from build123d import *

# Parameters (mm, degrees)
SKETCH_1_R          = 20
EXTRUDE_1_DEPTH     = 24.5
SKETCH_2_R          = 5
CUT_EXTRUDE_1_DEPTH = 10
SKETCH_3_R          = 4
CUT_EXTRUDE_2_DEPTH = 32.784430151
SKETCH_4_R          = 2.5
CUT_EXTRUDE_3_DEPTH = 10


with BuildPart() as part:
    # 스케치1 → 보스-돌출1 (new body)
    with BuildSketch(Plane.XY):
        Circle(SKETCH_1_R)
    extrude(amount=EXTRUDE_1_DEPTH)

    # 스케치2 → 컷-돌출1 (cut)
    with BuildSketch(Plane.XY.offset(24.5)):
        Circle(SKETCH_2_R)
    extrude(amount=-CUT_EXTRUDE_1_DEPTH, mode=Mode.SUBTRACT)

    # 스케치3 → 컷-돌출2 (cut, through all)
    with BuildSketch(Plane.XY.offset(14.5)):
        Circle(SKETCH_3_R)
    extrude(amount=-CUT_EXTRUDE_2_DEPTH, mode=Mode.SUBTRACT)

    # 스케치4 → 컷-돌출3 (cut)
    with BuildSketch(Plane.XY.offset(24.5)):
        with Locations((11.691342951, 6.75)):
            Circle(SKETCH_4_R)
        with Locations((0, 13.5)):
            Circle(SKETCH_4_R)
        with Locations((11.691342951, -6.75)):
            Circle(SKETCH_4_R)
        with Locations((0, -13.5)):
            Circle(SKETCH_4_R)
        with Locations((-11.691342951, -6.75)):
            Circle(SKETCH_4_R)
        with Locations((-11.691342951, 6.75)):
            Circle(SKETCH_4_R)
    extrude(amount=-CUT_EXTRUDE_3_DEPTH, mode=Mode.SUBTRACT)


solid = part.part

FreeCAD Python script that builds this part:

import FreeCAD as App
import Part
import Sketcher
from FreeCAD import Vector

doc = App.newDocument("Part")
body = doc.addObject("PartDesign::Body", "Body")

sketch1 = doc.addObject("Sketcher::SketchObject", "Sketch")
body.addObject(sketch1)
sketch1.AttachmentSupport = (doc.XY_Plane, [""])
sketch1.MapMode = "FlatFace"
sketch1.addGeometry(Part.Circle(Vector(0, 0, 0), Vector(0, 0, 1), 20), False)
sketch1.addConstraint([
    Sketcher.Constraint("Coincident", 0, 3, -1, 1),
    Sketcher.Constraint("Diameter", 0, 40.0),
])
pad1 = doc.addObject("PartDesign::Pad", "Pad")
body.addObject(pad1)
pad1.Profile = sketch1
pad1.Length = 24.5

sketch2 = doc.addObject("Sketcher::SketchObject", "Sketch001")
body.addObject(sketch2)
sketch2.AttachmentSupport = (doc.XY_Plane, [""])
sketch2.MapMode = "FlatFace"
sketch2.AttachmentOffset = App.Placement(Vector(0, 0, 24.5), App.Rotation())
sketch2.addGeometry(Part.Circle(Vector(0, 0, 0), Vector(0, 0, 1), 5), False)
sketch2.addConstraint([
    Sketcher.Constraint("Coincident", 0, 3, -1, 1),
    Sketcher.Constraint("Diameter", 0, 10.0),
])
pocket1 = doc.addObject("PartDesign::Pocket", "Pocket")
body.addObject(pocket1)
pocket1.Profile = sketch2
pocket1.Length = 10

sketch3 = doc.addObject("Sketcher::SketchObject", "Sketch002")
body.addObject(sketch3)
sketch3.AttachmentSupport = (doc.XY_Plane, [""])
sketch3.MapMode = "FlatFace"
sketch3.AttachmentOffset = App.Placement(Vector(0, 0, 14.5), App.Rotation())
sketch3.addGeometry(Part.Circle(Vector(0, 0, 0), Vector(0, 0, 1), 4), False)
sketch3.addConstraint([
    Sketcher.Constraint("Coincident", 0, 3, -1, 1),
    Sketcher.Constraint("Diameter", 0, 8.0),
])
pocket2 = doc.addObject("PartDesign::Pocket", "Pocket001")
body.addObject(pocket2)
pocket2.Profile = sketch3
pocket2.Type = "ThroughAll"

sketch4 = doc.addObject("Sketcher::SketchObject", "Sketch003")
body.addObject(sketch4)
sketch4.AttachmentSupport = (doc.XY_Plane, [""])
sketch4.MapMode = "FlatFace"
sketch4.AttachmentOffset = App.Placement(Vector(0, 0, 24.5), App.Rotation())
sketch4.addGeometry([
    Part.Circle(Vector(11.7, 6.8, 0), Vector(0, 0, 1), 2.5),
    Part.Circle(Vector(0, 13.5, 0), Vector(0, 0, 1), 2.5),
    Part.Circle(Vector(11.7, -6.8, 0), Vector(0, 0, 1), 2.5),
    Part.Circle(Vector(0, -13.5, 0), Vector(0, 0, 1), 2.5),
    Part.Circle(Vector(-11.7, -6.8, 0), Vector(0, 0, 1), 2.5),
    Part.Circle(Vector(-11.7, 6.8, 0), Vector(0, 0, 1), 2.5),
], False)
sketch4.addConstraint([
    Sketcher.Constraint("Equal", 0, 1),
    Sketcher.Constraint("Equal", 1, 2),
    Sketcher.Constraint("Equal", 2, 3),
    Sketcher.Constraint("Equal", 3, 4),
    Sketcher.Constraint("Equal", 4, 5),
    Sketcher.Constraint("Symmetric", 1, 3, 3, 3, -1, 1),
    Sketcher.Constraint("Symmetric", 0, 3, 4, 3, -1, 1),
    Sketcher.Constraint("Symmetric", 2, 3, 5, 3, -1, 1),
    Sketcher.Constraint("Symmetric", 2, 3, 4, 3, -2),
    Sketcher.Constraint("PointOnObject", 1, 3, -2),
    Sketcher.Constraint("Diameter", 0, 5.0),
    Sketcher.Constraint("DistanceY", 3, 3, 1, 3, 27.0),
    Sketcher.Constraint("DistanceY", 2, 3, 0, 3, 13.5),
    Sketcher.Constraint("DistanceX", -1, 1, 0, 3, 11.691343),
])
pocket3 = doc.addObject("PartDesign::Pocket", "Pocket002")
body.addObject(pocket3)
pocket3.Profile = sketch4
pocket3.Length = 10

doc.recompute()
